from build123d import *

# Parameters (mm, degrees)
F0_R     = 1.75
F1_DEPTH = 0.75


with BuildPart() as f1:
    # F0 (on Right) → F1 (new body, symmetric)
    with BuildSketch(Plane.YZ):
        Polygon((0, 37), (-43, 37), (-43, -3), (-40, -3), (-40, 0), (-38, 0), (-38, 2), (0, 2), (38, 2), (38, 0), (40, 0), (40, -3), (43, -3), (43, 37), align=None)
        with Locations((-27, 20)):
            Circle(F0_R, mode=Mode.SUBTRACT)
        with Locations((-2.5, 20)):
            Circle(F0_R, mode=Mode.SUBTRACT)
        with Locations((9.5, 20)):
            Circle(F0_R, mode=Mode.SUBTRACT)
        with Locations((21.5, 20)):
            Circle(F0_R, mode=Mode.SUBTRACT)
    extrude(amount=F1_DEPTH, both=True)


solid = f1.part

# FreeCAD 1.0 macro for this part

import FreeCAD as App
import Part
import Sketcher

V = App.Vector
Q = App.Units.Quantity


def add_polygon(sketch, points):
    """Adds a closed chain of lines whose ends are joined by coincident constraints."""
    first, n = sketch.GeometryCount, len(points)
    for a, b in zip(points, points[1:] + points[:1]):
        sketch.addGeometry(Part.LineSegment(App.Vector(*a, 0), App.Vector(*b, 0)), False)
    for i in range(n):
        sketch.addConstraint(Sketcher.Constraint("Coincident", first + i, 2, first + (i + 1) % n, 1))

doc = App.newDocument("Part")
params = doc.addObject("Spreadsheet::Sheet", "Params")
for row, (alias, value) in enumerate([
    ("sketch1_diameter", "3.5 mm"),
    ("sketch1_width", "3 mm"),
    ("sketch1_width2", "2 mm"),
    ("sketch1_width3", "76 mm"),
    ("sketch1_height", "40 mm"),
    ("pad1_length", "1.5 mm"),
], start=1):
    params.set(f"A{row}", alias)
    params.set(f"B{row}", "=" + value)
    params.setAlias(f"B{row}", alias)

body = doc.addObject("PartDesign::Body", "Body")

# Sketch on YZ plane
sketch1 = doc.addObject("Sketcher::SketchObject", "Sketch")
body.addObject(sketch1)
sketch1.AttachmentSupport = (doc.YZ_Plane, [""])
sketch1.MapMode = "FlatFace"
add_polygon(sketch1, [(-43, 37), (-43, -3), (-40, -3), (-40, 0), (-38, 0), (-38, 2), (38, 2), (38, 0), (40, 0), (40, -3), (43, -3), (43, 37)])  # lines 0-11
sketch1.addGeometry(Part.Circle(V(-27, 20, 0), V(0, 0, 1), 1.8), False)  # 12
sketch1.addGeometry(Part.Circle(V(-2.5, 20, 0), V(0, 0, 1), 1.8), False)  # 13
sketch1.addGeometry(Part.Circle(V(9.5, 20, 0), V(0, 0, 1), 1.8), False)  # 14
sketch1.addGeometry(Part.Circle(V(21.5, 20, 0), V(0, 0, 1), 1.8), False)  # 15
sketch1.addConstraint([
    Sketcher.Constraint("Vertical", 0),
    Sketcher.Constraint("Horizontal", 1),
    Sketcher.Constraint("Vertical", 2),
    Sketcher.Constraint("Horizontal", 3),
    Sketcher.Constraint("Vertical", 4),
    Sketcher.Constraint("Horizontal", 5),
    Sketcher.Constraint("Vertical", 6),
    Sketcher.Constraint("Horizontal", 7),
    Sketcher.Constraint("Vertical", 8),
    Sketcher.Constraint("Horizontal", 9),
    Sketcher.Constraint("Vertical", 10),
    Sketcher.Constraint("Horizontal", 11),
    Sketcher.Constraint("Equal", 12, 13),
    Sketcher.Constraint("Equal", 13, 14),
    Sketcher.Constraint("Equal", 14, 15),
    Sketcher.Constraint("Symmetric", 3, 2, 6, 2, -1, 1),
    Sketcher.Constraint("Symmetric", 2, 2, 7, 2, -2),
    Sketcher.Constraint("Symmetric", 0, 2, 9, 2, -2),
    Sketcher.Constraint("Horizontal", 12, 3, 13, 3),
    Sketcher.Constraint("Horizontal", 13, 3, 14, 3),
    Sketcher.Constraint("Horizontal", 14, 3, 15, 3),
    Sketcher.Constraint("Equal", 9, 2),
    Sketcher.Constraint("Equal", 7, 4),
    Sketcher.Constraint("Diameter", 12, Q("3.5 mm")),
    Sketcher.Constraint("DistanceX", 1, 1, 1, 2, Q("3 mm")),
    Sketcher.Constraint("DistanceX", 3, 1, 3, 2, Q("2 mm")),
    Sketcher.Constraint("DistanceX", 5, 1, 5, 2, Q("76 mm")),
    Sketcher.Constraint("DistanceY", 0, 2, 0, 1, Q("40 mm")),
    Sketcher.Constraint("DistanceX", 12, 3, -1, 1, Q("27 mm")),
    Sketcher.Constraint("DistanceY", -1, 1, 12, 3, Q("20 mm")),
    Sketcher.Constraint("DistanceX", 13, 3, 14, 3, Q("12 mm")),
    Sketcher.Constraint("DistanceX", 14, 3, 15, 3, Q("12 mm")),
    Sketcher.Constraint("DistanceX", 13, 3, -1, 1, Q("2.5 mm")),
])
sketch1.setExpression("Constraints[35]", "Params.sketch1_diameter")
sketch1.setExpression("Constraints[36]", "Params.sketch1_width")
sketch1.setExpression("Constraints[37]", "Params.sketch1_width2")
sketch1.setExpression("Constraints[38]", "Params.sketch1_width3")
sketch1.setExpression("Constraints[39]", "Params.sketch1_height")
pad1 = doc.addObject("PartDesign::Pad", "Pad")
body.addObject(pad1)
pad1.Profile = sketch1
pad1.setExpression("Length", "Params.pad1_length")
pad1.Midplane = True

doc.recompute()
